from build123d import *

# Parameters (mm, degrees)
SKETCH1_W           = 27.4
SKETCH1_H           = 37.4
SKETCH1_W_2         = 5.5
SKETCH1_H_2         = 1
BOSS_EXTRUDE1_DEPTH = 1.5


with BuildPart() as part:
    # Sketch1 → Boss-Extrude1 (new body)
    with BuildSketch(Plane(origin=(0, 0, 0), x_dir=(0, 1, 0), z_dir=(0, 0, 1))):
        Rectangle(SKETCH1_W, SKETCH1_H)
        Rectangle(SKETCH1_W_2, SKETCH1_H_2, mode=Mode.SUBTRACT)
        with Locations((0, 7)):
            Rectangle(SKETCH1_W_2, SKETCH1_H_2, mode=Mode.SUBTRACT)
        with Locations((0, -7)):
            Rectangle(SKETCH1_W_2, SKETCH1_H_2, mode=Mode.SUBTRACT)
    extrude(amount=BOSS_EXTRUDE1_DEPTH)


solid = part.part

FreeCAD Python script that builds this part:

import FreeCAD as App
import Part
import Sketcher


def add_polygon(sketch, points):
    """Adds a closed chain of lines whose ends are joined by coincident constraints."""
    first, n = sketch.GeometryCount, len(points)
    for a, b in zip(points, points[1:] + points[:1]):
        sketch.addGeometry(Part.LineSegment(App.Vector(*a, 0), App.Vector(*b, 0)), False)
    for i in range(n):
        sketch.addConstraint(Sketcher.Constraint("Coincident", first + i, 2, first + (i + 1) % n, 1))

doc = App.newDocument("Part")
body = doc.addObject("PartDesign::Body", "Body")

# Sketch on XY plane
sketch1 = doc.addObject("Sketcher::SketchObject", "Sketch")
body.addObject(sketch1)
sketch1.AttachmentSupport = (doc.XY_Plane, [""])
sketch1.MapMode = "FlatFace"
add_polygon(sketch1, [(-18.7, -13.7), (18.7, -13.7), (18.7, 13.7), (-18.7, 13.7)])  # lines 0-3
add_polygon(sketch1, [(7.5, 2.8), (7.5, -2.8), (6.5, -2.8), (6.5, 2.8)])  # lines 4-7
add_polygon(sketch1, [(0.5, 2.8), (0.5, -2.8), (-0.5, -2.8), (-0.5, 2.8)])  # lines 8-11
add_polygon(sketch1, [(-6.5, 2.8), (-6.5, -2.8), (-7.5, -2.8), (-7.5, 2.8)])  # lines 12-15
sketch1.addConstraint([
    Sketcher.Constraint("Horizontal", 0),
    Sketcher.Constraint("Vertical", 1),
    Sketcher.Constraint("Horizontal", 2),
    Sketcher.Constraint("Vertical", 3),
    Sketcher.Constraint("Vertical", 4),
    Sketcher.Constraint("Horizontal", 5),
    Sketcher.Constraint("Vertical", 6),
    Sketcher.Constraint("Horizontal", 7),
    Sketcher.Constraint("Vertical", 8),
    Sketcher.Constraint("Horizontal", 9),
    Sketcher.Constraint("Vertical", 10),
    Sketcher.Constraint("Horizontal", 11),
    Sketcher.Constraint("Vertical", 12),
    Sketcher.Constraint("Horizontal", 13),
    Sketcher.Constraint("Vertical", 14),
    Sketcher.Constraint("Horizontal", 15),
    Sketcher.Constraint("Symmetric", 0, 2, 2, 2, -1, 1),
    Sketcher.Constraint("Symmetric", 8, 2, 10, 2, -1, 1),
    Sketcher.Constraint("Symmetric", 6, 2, 12, 2, -1, 1),
    Sketcher.Constraint("Symmetric", 4, 2, 14, 2, -1, 1),
    Sketcher.Constraint("Horizontal", 5, 2, 8, 2),
    Sketcher.Constraint("Horizontal", 7, 2, 10, 2),
    Sketcher.Constraint("Equal", 7, 9),
    Sketcher.Constraint("DistanceX", 5, 2, 5, 1, 1.0),
    Sketcher.Constraint("DistanceX", 0, 1, 0, 2, 37.4),
    Sketcher.Constraint("DistanceY", 1, 1, 1, 2, 27.4),
    Sketcher.Constraint("DistanceY", 4, 2, 4, 1, 5.5),
    Sketcher.Constraint("DistanceX", 8, 2, 5, 2, 6.0),
])
pad1 = doc.addObject("PartDesign::Pad", "Pad")
body.addObject(pad1)
pad1.Profile = sketch1
pad1.Length = 1.5

doc.recompute()
